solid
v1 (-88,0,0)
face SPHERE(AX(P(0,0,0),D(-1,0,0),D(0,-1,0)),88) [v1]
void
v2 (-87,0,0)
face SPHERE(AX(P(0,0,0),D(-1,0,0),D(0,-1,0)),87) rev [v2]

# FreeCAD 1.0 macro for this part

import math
import FreeCAD as App
import Part
import Sketcher
Q = App.Units.Quantity

doc = App.newDocument("Part")
body = doc.addObject("PartDesign::Body", "Body")

sketch1 = doc.addObject("Sketcher::SketchObject", "Sketch")
body.addObject(sketch1)
sketch1.AttachmentSupport = (doc.XY_Plane, [""])
sketch1.MapMode = "FlatFace"
sketch1.addGeometry([
    Part.LineSegment(App.Vector(-88, 0, 0), App.Vector(-87, 0, 0)),
    Part.ArcOfCircle(Part.Circle(App.Vector(0, 0, 0), App.Vector(0, 0, 1), 87), math.radians(0), math.radians(180)),
    Part.LineSegment(App.Vector(87, 0, 0), App.Vector(88, 0, 0)),
    Part.ArcOfCircle(Part.Circle(App.Vector(0, 0, 0), App.Vector(0, 0, 1), 88), math.radians(0), math.radians(180)),
], False)
sketch1.addConstraint([
    Sketcher.Constraint("Coincident", 0, 2, 1, 2),
    Sketcher.Constraint("Coincident", 1, 1, 2, 1),
    Sketcher.Constraint("Coincident", 2, 2, 3, 1),
    Sketcher.Constraint("Coincident", 3, 2, 0, 1),
    Sketcher.Constraint("Horizontal", 0),
    Sketcher.Constraint("Horizontal", 2),
    Sketcher.Constraint("Coincident", 1, 3, -1, 1),
    Sketcher.Constraint("Coincident", 3, 3, -1, 1),
    Sketcher.Constraint("PointOnObject", 0, 2, -1),
    Sketcher.Constraint("PointOnObject", 1, 1, -1),
    Sketcher.Constraint("Radius", 1, Q("87 mm")),
    Sketcher.Constraint("Radius", 3, Q("88 mm")),
])
revolution = doc.addObject("PartDesign::Revolution", "Revolution")
body.addObject(revolution)
revolution.Profile = sketch1
revolution.ReferenceAxis = (sketch1, ["H_Axis"])
revolution.Angle = 360

doc.recompute()
